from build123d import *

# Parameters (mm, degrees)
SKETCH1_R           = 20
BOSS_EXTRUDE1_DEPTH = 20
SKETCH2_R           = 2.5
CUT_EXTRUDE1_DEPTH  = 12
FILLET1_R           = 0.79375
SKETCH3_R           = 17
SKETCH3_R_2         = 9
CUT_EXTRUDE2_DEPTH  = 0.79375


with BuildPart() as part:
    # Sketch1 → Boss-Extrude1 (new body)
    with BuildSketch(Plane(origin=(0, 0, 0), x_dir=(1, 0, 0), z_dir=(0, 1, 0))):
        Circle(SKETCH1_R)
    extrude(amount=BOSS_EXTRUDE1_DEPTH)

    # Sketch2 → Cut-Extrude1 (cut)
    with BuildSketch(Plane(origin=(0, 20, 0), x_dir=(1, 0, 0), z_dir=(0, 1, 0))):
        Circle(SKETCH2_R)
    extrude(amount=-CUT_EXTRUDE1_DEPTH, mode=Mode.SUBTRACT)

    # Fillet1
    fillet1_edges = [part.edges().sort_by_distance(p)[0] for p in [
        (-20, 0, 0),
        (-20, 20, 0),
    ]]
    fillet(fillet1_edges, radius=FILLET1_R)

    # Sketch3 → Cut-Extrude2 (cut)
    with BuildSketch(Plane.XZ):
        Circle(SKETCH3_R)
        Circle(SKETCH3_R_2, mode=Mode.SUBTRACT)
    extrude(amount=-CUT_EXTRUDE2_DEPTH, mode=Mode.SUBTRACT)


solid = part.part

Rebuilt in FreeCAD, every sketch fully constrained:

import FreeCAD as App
import Part
import Sketcher


def edges_at(feature, points):
    """Names of the edges that pass closest to the given points."""
    edges = feature.Shape.Edges
    near = lambda p: min(range(len(edges)), key=lambda i: edges[i].distToShape(Part.Vertex(*p))[0])
    return sorted({f"Edge{near(p) + 1}" for p in points})

doc = App.newDocument("Part")
params = doc.addObject("Spreadsheet::Sheet", "Params")
for row, (alias, value) in enumerate([
    ("sketch1_diameter", "40 mm"),
    ("pad1_length", "20 mm"),
    ("sketch2_diameter", "5 mm"),
    ("pocket1_length", "12 mm"),
    ("fillet_radius", "0.79375 mm"),
    ("sketch3_diameter", "34 mm"),
    ("sketch3_diameter2", "18 mm"),
    ("pocket2_length", "0.79375 mm"),
], start=1):
    params.set(f"A{row}", alias)
    params.set(f"B{row}", "=" + value)
    params.setAlias(f"B{row}", alias)

body = doc.addObject("PartDesign::Body", "Body")

sketch1 = body.newObject("Sketcher::SketchObject", "Sketch")
sketch1.AttachmentSupport = (doc.getObject("XZ_Plane"), [""])
sketch1.MapMode = "FlatFace"
sketch1.addGeometry(Part.Circle(App.Vector(0, 0, 0), App.Vector(0, 0, 1), 20), False)
sketch1.addConstraint(Sketcher.Constraint("Coincident", 0, 3, -1, 1))
sketch1.addConstraint(Sketcher.Constraint("Diameter", 0, 40.0))
sketch1.setExpression("Constraints[1]", "Params.sketch1_diameter")
pad1 = body.newObject("PartDesign::Pad", "Pad")
pad1.Profile = sketch1
pad1.setExpression("Length", "Params.pad1_length")
pad1.Reversed = True

sketch2 = body.newObject("Sketcher::SketchObject", "Sketch001")
sketch2.AttachmentSupport = (doc.getObject("XZ_Plane"), [""])
sketch2.MapMode = "FlatFace"
sketch2.AttachmentOffset = App.Placement(App.Vector(0, 0, -20), App.Rotation())
sketch2.addGeometry(Part.Circle(App.Vector(0, 0, 0), App.Vector(0, 0, 1), 2.5), False)
sketch2.addConstraint(Sketcher.Constraint("Coincident", 0, 3, -1, 1))
sketch2.addConstraint(Sketcher.Constraint("Diameter", 0, 5.0))
sketch2.setExpression("Constraints[1]", "Params.sketch2_diameter")
pocket1 = body.newObject("PartDesign::Pocket", "Pocket")
pocket1.Profile = sketch2
pocket1.setExpression("Length", "Params.pocket1_length")
pocket1.Reversed = True
doc.recompute()

fillet = body.newObject("PartDesign::Fillet", "Fillet")
fillet.Base = (pocket1, edges_at(pocket1, [(-20, 0, 0), (-20, 20, 0)]))
fillet.setExpression("Radius", "Params.fillet_radius")

sketch3 = body.newObject("Sketcher::SketchObject", "Sketch002")
sketch3.AttachmentSupport = (doc.getObject("XZ_Plane"), [""])
sketch3.MapMode = "FlatFace"
sketch3.addGeometry(Part.Circle(App.Vector(0, 0, 0), App.Vector(0, 0, 1), 17), False)
sketch3.addGeometry(Part.Circle(App.Vector(0, 0, 0), App.Vector(0, 0, 1), 9), False)
sketch3.addConstraint(Sketcher.Constraint("Coincident", 0, 3, -1, 1))
sketch3.addConstraint(Sketcher.Constraint("Coincident", 1, 3, -1, 1))
sketch3.addConstraint(Sketcher.Constraint("Diameter", 0, 34.0))
sketch3.addConstraint(Sketcher.Constraint("Diameter", 1, 18.0))
sketch3.setExpression("Constraints[2]", "Params.sketch3_diameter")
sketch3.setExpression("Constraints[3]", "Params.sketch3_diameter2")
pocket2 = body.newObject("PartDesign::Pocket", "Pocket001")
pocket2.Profile = sketch3
pocket2.setExpression("Length", "Params.pocket2_length")

doc.recompute()
